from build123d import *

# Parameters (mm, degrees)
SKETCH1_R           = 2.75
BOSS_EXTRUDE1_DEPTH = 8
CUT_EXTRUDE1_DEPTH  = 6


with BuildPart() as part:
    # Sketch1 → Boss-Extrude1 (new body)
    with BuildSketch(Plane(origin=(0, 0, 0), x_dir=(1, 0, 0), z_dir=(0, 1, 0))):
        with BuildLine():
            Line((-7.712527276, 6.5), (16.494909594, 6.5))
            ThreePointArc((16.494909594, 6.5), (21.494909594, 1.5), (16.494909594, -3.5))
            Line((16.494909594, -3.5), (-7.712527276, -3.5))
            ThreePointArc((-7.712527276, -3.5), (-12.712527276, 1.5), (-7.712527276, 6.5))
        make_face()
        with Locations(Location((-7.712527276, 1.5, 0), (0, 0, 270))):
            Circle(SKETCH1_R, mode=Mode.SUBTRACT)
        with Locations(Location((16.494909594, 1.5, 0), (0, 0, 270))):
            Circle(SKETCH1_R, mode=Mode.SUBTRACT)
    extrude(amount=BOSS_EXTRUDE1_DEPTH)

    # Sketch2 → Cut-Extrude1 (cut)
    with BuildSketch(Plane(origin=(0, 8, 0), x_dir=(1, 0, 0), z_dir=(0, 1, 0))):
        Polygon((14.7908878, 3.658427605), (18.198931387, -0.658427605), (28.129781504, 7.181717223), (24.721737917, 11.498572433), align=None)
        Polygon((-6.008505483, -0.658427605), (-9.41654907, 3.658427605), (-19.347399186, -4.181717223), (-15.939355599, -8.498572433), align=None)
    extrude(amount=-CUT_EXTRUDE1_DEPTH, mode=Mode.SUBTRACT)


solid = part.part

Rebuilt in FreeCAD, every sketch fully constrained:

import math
import FreeCAD as App
import Part
import Sketcher
from FreeCAD import Vector


def add_polygon(sketch, points):
    """Adds a closed chain of lines whose ends are joined by coincident constraints."""
    first, n = sketch.GeometryCount, len(points)
    for a, b in zip(points, points[1:] + points[:1]):
        sketch.addGeometry(Part.LineSegment(App.Vector(*a, 0), App.Vector(*b, 0)), False)
    for i in range(n):
        sketch.addConstraint(Sketcher.Constraint("Coincident", first + i, 2, first + (i + 1) % n, 1))

doc = App.newDocument("Part")
body = doc.addObject("PartDesign::Body", "Body")

# Sketch on XZ plane
sketch1 = body.newObject("Sketcher::SketchObject", "Sketch")
sketch1.AttachmentSupport = (doc.getObject("XZ_Plane"), [""])
sketch1.MapMode = "FlatFace"
sketch1.addGeometry([
    Part.LineSegment(Vector(16.5, -6.5, 0), Vector(-7.7, -6.5, 0)),  # 0
    Part.ArcOfCircle(Part.Circle(Vector(-7.7, -1.5, 0), Vector(0, 0, 1), 5), math.radians(90), math.radians(270)),  # 1
    Part.LineSegment(Vector(-7.7, 3.5, 0), Vector(16.5, 3.5, 0)),  # 2
    Part.ArcOfCircle(Part.Circle(Vector(16.5, -1.5, 0), Vector(0, 0, 1), 5), math.radians(-90), math.radians(90)),  # 3
    Part.Circle(Vector(16.5, -1.5, 0), Vector(0, 0, 1), 2.8),  # 4
    Part.Circle(Vector(-7.7, -1.5, 0), Vector(0, 0, 1), 2.8),  # 5
], False)
sketch1.addConstraint([
    Sketcher.Constraint("Tangent", 0, 2, 1, 2),
    Sketcher.Constraint("Tangent", 1, 1, 2, 1),
    Sketcher.Constraint("Tangent", 2, 2, 3, 2),
    Sketcher.Constraint("Tangent", 3, 1, 0, 1),
    Sketcher.Constraint("Horizontal", 0),
    Sketcher.Constraint("Horizontal", 2),
    Sketcher.Constraint("Coincident", 4, 3, 3, 3),
    Sketcher.Constraint("Coincident", 5, 3, 1, 3),
    Sketcher.Constraint("Equal", 4, 5),
    Sketcher.Constraint("Radius", 1, 5.0),
    Sketcher.Constraint("Diameter", 4, 5.5),
    Sketcher.Constraint("DistanceY", 1, 3, -1, 1, 1.5),
    Sketcher.Constraint("DistanceX", 0, 2, 0, 1, 24.207437),
    Sketcher.Constraint("DistanceX", -1, 1, 3, 3, 16.49491),
])
pad1 = body.newObject("PartDesign::Pad", "Pad")
pad1.Profile = sketch1
pad1.Length = 8
pad1.Reversed = True

# Sketch on XZ plane
sketch2 = body.newObject("Sketcher::SketchObject", "Sketch001")
sketch2.AttachmentSupport = (doc.getObject("XZ_Plane"), [""])
sketch2.MapMode = "FlatFace"
sketch2.AttachmentOffset = App.Placement(Vector(0, 0, -8), App.Rotation())
add_polygon(sketch2, [(15, -4), (18, 1), (28, -7), (25, -11)])  # lines 0-3
add_polygon(sketch2, [(-6, 1), (-9, -4), (-19, 4), (-16, 8)])  # lines 4-7
sketch2.addConstraint([
    Sketcher.Constraint("Perpendicular", 0, 1),
    Sketcher.Constraint("Perpendicular", 1, 2),
    Sketcher.Constraint("Perpendicular", 2, 3),
    Sketcher.Constraint("Perpendicular", 3, 4),
    Sketcher.Constraint("Perpendicular", 4, 5),
    Sketcher.Constraint("Perpendicular", 5, 6),
    Sketcher.Constraint("Perpendicular", 6, 7),
    Sketcher.Constraint("Horizontal", 3, 2, 4, 2),
    Sketcher.Constraint("Horizontal", 0, 2, 7, 2),
    Sketcher.Constraint("Equal", 3, 5),
    Sketcher.Constraint("Distance", 0, 5.5),
    Sketcher.Constraint("DistanceY", 2, 2, 0, 2, 12.157),
    Sketcher.Constraint("DistanceX", 5, 2, -1, 1, 19.347399),
    Sketcher.Constraint("DistanceX", -1, 1, 0, 2, 18.198931),
    Sketcher.Constraint("DistanceX", -1, 1, 1, 2, 28.129782),
    Sketcher.Constraint("DistanceY", -1, 1, 0, 2, 0.658428),
])
pocket1 = body.newObject("PartDesign::Pocket", "Pocket")
pocket1.Profile = sketch2
pocket1.Length = 6
pocket1.Reversed = True

doc.recompute()
